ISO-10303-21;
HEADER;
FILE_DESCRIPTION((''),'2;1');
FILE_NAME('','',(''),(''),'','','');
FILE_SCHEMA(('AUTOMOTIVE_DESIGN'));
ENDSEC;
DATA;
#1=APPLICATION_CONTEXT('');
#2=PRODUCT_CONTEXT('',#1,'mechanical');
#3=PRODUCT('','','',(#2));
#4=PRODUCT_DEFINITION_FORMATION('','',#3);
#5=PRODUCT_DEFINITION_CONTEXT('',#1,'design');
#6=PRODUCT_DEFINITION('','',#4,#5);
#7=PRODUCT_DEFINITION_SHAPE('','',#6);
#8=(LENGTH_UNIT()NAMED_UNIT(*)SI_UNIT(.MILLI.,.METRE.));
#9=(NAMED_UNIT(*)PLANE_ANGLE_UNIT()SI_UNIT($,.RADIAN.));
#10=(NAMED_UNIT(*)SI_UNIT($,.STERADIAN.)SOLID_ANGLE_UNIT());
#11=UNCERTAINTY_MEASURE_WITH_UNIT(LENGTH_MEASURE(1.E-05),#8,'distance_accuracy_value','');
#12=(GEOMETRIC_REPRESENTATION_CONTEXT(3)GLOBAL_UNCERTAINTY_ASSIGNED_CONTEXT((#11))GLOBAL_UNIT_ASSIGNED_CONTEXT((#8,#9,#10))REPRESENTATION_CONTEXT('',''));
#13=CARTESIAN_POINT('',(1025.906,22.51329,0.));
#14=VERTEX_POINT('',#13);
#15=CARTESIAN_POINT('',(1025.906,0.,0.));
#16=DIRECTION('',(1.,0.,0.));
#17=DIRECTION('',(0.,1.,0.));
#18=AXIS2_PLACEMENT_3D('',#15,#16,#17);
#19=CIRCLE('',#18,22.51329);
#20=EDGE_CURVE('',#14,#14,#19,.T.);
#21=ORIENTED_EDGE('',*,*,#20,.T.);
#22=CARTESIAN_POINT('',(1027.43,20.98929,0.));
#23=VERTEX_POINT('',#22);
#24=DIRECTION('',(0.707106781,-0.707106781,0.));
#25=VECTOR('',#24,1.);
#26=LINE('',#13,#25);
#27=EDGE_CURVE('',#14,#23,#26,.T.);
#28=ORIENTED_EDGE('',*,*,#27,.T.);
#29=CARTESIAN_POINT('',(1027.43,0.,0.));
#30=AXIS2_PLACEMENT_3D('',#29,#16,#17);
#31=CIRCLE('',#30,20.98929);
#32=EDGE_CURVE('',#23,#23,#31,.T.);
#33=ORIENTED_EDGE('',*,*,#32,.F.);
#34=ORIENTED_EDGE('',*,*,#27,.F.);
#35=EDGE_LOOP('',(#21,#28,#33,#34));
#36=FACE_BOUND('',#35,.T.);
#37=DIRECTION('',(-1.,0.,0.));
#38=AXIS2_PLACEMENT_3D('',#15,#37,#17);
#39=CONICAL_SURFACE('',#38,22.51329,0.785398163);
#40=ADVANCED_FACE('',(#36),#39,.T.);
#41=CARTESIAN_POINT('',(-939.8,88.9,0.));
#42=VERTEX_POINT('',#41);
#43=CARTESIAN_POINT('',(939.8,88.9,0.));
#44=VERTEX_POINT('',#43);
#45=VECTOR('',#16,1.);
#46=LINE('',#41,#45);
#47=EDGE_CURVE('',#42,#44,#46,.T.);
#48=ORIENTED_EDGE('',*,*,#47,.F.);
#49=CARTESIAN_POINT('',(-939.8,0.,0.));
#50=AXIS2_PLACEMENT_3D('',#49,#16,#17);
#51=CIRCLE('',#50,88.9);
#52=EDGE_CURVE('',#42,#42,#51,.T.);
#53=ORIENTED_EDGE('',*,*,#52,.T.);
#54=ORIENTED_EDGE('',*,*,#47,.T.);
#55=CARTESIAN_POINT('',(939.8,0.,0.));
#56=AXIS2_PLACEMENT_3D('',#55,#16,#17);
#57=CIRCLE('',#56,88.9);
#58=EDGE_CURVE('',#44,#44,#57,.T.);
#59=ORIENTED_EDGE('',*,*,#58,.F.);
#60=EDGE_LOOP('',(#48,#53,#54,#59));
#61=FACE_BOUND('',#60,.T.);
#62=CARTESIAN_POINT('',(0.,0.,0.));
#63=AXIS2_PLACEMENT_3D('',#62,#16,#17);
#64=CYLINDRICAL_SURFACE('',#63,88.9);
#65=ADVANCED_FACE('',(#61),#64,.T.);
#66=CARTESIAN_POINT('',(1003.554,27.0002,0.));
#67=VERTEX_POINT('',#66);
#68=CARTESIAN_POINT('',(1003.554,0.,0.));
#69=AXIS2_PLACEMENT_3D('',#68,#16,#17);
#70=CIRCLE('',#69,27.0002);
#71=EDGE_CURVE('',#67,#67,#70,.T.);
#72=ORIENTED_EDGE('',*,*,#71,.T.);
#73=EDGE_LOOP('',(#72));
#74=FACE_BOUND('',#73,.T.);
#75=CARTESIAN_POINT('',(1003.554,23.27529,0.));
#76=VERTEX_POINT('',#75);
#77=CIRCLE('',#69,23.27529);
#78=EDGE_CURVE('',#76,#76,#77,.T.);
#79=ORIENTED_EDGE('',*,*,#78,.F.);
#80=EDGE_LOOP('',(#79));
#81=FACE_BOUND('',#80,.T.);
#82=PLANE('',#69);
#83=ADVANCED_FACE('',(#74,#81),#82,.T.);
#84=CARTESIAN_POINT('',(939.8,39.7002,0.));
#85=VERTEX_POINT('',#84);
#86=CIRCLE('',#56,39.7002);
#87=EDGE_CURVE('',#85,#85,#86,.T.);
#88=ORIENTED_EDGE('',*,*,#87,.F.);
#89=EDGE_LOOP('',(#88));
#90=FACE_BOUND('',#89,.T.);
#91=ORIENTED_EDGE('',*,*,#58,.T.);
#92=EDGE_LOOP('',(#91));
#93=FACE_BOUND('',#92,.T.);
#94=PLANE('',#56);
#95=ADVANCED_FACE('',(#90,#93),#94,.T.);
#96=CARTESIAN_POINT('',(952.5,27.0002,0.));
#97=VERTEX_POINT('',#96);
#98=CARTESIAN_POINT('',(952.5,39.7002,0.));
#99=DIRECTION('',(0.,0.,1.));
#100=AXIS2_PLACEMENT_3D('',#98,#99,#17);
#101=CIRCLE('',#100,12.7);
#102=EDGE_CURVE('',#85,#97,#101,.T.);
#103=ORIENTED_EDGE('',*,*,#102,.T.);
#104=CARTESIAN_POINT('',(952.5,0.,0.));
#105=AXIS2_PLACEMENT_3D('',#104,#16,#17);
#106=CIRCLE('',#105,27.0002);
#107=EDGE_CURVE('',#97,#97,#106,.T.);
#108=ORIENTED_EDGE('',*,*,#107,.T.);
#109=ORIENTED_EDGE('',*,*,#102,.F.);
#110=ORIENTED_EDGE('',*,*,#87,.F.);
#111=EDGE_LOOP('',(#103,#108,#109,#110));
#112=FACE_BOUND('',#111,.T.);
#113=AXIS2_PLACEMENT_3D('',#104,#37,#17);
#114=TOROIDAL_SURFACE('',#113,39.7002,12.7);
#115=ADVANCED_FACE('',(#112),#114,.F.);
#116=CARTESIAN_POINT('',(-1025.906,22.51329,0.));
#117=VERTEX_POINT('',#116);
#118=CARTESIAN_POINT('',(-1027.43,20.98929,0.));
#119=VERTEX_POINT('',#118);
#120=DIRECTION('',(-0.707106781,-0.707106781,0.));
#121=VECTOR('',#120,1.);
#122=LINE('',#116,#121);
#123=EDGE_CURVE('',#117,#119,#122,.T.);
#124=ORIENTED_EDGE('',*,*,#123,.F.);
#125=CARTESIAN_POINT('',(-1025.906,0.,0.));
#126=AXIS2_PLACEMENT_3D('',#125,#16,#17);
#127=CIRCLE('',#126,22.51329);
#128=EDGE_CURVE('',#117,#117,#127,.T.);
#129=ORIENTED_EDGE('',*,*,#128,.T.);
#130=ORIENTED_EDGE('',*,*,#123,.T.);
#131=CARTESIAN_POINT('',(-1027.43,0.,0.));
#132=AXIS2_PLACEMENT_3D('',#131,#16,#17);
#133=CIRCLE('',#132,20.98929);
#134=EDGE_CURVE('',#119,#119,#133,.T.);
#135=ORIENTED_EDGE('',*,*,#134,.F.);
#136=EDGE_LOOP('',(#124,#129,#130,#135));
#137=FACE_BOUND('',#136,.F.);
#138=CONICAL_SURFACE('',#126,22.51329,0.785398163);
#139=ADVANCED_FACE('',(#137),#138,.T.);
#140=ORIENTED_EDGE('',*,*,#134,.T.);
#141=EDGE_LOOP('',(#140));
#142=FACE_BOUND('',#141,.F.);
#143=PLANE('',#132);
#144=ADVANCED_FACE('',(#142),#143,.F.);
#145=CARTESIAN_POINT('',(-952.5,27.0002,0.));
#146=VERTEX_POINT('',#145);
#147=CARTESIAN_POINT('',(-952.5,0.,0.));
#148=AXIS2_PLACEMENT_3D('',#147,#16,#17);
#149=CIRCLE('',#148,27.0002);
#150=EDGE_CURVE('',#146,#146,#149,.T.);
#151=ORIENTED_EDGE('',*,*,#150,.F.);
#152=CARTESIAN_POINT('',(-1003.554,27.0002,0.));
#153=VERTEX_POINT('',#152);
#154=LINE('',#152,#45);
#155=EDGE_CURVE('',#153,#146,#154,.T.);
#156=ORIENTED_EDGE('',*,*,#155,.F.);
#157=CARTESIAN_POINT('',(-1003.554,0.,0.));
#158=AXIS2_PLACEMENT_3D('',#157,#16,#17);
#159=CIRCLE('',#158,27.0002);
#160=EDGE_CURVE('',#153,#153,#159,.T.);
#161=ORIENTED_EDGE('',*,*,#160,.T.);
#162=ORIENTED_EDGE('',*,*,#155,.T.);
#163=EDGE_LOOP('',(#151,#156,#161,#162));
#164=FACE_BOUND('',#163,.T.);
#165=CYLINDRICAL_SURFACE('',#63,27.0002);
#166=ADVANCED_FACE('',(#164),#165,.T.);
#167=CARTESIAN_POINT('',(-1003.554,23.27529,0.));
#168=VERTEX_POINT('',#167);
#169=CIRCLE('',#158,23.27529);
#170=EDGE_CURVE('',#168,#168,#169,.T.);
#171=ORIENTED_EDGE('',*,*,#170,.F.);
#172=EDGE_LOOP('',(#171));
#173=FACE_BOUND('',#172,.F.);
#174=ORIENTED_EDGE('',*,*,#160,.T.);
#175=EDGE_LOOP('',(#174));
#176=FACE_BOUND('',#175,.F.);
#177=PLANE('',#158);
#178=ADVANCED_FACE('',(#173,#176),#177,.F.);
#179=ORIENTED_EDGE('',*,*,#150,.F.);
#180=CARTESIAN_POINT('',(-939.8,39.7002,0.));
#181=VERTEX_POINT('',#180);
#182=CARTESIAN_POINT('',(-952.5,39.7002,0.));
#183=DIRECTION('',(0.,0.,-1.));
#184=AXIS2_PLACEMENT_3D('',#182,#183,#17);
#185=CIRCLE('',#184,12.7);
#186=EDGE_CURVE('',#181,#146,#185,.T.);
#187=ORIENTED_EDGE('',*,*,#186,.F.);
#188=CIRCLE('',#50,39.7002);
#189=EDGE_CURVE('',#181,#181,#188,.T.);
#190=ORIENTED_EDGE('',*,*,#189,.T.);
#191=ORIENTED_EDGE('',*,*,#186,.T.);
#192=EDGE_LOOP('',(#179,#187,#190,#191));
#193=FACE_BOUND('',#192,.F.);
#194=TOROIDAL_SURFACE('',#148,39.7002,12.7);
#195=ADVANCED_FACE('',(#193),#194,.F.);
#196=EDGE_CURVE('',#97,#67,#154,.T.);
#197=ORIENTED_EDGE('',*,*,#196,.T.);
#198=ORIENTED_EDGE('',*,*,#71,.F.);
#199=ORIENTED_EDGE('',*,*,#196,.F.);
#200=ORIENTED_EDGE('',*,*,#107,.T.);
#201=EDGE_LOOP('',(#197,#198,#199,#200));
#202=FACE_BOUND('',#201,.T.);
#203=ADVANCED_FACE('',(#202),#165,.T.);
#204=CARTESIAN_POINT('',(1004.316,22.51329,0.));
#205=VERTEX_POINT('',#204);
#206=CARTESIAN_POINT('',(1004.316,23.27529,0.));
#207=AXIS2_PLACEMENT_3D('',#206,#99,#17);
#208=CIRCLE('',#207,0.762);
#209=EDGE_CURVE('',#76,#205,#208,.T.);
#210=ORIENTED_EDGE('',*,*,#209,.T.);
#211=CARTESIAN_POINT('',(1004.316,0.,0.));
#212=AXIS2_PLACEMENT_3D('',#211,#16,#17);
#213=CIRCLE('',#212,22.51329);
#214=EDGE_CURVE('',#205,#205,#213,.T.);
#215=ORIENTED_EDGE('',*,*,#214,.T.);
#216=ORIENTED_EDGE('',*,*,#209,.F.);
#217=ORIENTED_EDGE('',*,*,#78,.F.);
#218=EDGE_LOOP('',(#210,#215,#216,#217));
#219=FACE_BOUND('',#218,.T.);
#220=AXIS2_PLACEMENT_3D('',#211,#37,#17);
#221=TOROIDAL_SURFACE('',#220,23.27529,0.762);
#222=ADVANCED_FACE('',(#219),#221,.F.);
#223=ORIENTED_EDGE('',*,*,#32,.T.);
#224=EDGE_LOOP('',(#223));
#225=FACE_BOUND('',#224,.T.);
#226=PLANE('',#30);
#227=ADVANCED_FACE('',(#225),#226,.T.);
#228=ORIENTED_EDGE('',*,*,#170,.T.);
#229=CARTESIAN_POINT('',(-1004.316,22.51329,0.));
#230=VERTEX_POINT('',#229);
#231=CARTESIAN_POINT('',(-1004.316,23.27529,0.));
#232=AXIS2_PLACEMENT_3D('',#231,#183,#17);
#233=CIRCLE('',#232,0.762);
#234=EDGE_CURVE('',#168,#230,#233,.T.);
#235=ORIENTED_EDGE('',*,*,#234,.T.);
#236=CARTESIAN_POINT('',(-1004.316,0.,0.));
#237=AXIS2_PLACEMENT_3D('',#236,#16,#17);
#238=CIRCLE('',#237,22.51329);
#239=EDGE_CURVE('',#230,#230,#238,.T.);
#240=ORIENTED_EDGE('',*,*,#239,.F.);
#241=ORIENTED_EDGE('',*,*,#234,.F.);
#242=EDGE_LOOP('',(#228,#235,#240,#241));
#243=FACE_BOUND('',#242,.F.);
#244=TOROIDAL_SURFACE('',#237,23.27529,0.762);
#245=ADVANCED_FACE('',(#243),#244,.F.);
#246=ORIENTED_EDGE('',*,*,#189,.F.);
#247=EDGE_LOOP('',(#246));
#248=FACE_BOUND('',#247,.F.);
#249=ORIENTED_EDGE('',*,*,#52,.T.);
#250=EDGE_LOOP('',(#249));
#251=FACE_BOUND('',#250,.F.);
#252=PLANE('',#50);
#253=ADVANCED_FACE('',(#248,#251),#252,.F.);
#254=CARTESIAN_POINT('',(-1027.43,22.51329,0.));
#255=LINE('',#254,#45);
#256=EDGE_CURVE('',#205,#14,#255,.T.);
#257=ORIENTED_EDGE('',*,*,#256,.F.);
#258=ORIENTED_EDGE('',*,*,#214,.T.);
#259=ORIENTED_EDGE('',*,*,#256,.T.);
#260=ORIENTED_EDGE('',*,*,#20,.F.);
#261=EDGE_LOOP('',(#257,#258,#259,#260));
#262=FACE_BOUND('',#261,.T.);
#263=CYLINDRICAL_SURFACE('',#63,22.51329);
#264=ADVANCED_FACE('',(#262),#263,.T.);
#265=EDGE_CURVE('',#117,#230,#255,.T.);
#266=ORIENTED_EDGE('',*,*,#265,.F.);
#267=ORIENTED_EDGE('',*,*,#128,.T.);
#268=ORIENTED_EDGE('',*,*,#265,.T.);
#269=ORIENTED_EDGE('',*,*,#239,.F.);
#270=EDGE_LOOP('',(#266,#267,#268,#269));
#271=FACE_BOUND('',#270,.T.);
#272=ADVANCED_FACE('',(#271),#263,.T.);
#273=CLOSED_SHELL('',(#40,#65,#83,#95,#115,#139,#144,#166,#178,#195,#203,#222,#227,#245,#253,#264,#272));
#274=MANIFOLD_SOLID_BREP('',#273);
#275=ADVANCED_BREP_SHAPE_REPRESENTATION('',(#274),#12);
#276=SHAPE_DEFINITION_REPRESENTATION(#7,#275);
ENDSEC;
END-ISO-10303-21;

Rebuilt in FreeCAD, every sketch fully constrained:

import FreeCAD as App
import Part
import Sketcher
from FreeCAD import Vector
Q = App.Units.Quantity


def edges_at(feature, points):
    """Names of the edges that pass closest to the given points."""
    edges = feature.Shape.Edges
    near = lambda p: min(range(len(edges)), key=lambda i: edges[i].distToShape(Part.Vertex(*p))[0])
    return sorted({f"Edge{near(p) + 1}" for p in points})

doc = App.newDocument("Part")
body = doc.addObject("PartDesign::Body", "Body")

# Sketch on YZ plane
sketch1 = doc.addObject("Sketcher::SketchObject", "Sketch")
body.addObject(sketch1)
sketch1.AttachmentSupport = (doc.YZ_Plane, [""])
sketch1.MapMode = "FlatFace"
sketch1.addGeometry(Part.Circle(Vector(0, 0, 0), Vector(0, 0, 1), 23), False)
sketch1.addConstraint([
    Sketcher.Constraint("Coincident", 0, 3, -1, 1),
    Sketcher.Constraint("Diameter", 0, Q("1.7727 in")),
])
pad1 = doc.addObject("PartDesign::Pad", "Pad")
body.addObject(pad1)
pad1.Profile = sketch1
pad1.Length = Q("80.9 in")
pad1.Midplane = True

# Sketch on YZ plane
sketch2 = doc.addObject("Sketcher::SketchObject", "Sketch001")
body.addObject(sketch2)
sketch2.AttachmentSupport = (doc.YZ_Plane, [""])
sketch2.MapMode = "FlatFace"
sketch2.addGeometry(Part.Circle(Vector(0, 0, 0), Vector(0, 0, 1), 27), False)
sketch2.addConstraint([
    Sketcher.Constraint("Coincident", 0, 3, -1, 1),
    Sketcher.Constraint("Diameter", 0, Q("2.126 in")),
])
pad2 = doc.addObject("PartDesign::Pad", "Pad001")
body.addObject(pad2)
pad2.Profile = sketch2
pad2.Length = Q("79.02 in")
pad2.Midplane = True

# Sketch on YZ plane
sketch3 = doc.addObject("Sketcher::SketchObject", "Sketch002")
body.addObject(sketch3)
sketch3.AttachmentSupport = (doc.YZ_Plane, [""])
sketch3.MapMode = "FlatFace"
sketch3.addGeometry(Part.Circle(Vector(0, 0, 0), Vector(0, 0, 1), 89), False)
sketch3.addConstraint([
    Sketcher.Constraint("Coincident", 0, 3, -1, 1),
    Sketcher.Constraint("Diameter", 0, Q("7 in")),
])
pad3 = doc.addObject("PartDesign::Pad", "Pad002")
body.addObject(pad3)
pad3.Profile = sketch3
pad3.Length = Q("74 in")
pad3.Midplane = True
doc.recompute()

fillet = doc.addObject("PartDesign::Fillet", "Fillet")
body.addObject(fillet)
fillet.Base = (pad3, edges_at(pad3, [(939.8, -27, 0), (-939.8, -27, 0)]))
fillet.Radius = Q("0.5 in")
doc.recompute()

fillet2 = doc.addObject("PartDesign::Fillet", "Fillet001")
body.addObject(fillet2)
fillet2.Base = (fillet, edges_at(fillet, [(-1003.554, -22.513, 0)]))
fillet2.Radius = Q("0.03 in")
doc.recompute()

fillet3 = doc.addObject("PartDesign::Fillet", "Fillet002")
body.addObject(fillet3)
fillet3.Base = (fillet2, edges_at(fillet2, [(1003.554, -22.513, 0)]))
fillet3.Radius = Q("0.03 in")
doc.recompute()

chamfer = doc.addObject("PartDesign::Chamfer", "Chamfer")
body.addObject(chamfer)
chamfer.Base = (fillet3, edges_at(fillet3, [(1027.43, -22.513, 0), (-1027.43, -22.513, 0)]))
chamfer.Size = Q("0.06 in")

doc.recompute()
